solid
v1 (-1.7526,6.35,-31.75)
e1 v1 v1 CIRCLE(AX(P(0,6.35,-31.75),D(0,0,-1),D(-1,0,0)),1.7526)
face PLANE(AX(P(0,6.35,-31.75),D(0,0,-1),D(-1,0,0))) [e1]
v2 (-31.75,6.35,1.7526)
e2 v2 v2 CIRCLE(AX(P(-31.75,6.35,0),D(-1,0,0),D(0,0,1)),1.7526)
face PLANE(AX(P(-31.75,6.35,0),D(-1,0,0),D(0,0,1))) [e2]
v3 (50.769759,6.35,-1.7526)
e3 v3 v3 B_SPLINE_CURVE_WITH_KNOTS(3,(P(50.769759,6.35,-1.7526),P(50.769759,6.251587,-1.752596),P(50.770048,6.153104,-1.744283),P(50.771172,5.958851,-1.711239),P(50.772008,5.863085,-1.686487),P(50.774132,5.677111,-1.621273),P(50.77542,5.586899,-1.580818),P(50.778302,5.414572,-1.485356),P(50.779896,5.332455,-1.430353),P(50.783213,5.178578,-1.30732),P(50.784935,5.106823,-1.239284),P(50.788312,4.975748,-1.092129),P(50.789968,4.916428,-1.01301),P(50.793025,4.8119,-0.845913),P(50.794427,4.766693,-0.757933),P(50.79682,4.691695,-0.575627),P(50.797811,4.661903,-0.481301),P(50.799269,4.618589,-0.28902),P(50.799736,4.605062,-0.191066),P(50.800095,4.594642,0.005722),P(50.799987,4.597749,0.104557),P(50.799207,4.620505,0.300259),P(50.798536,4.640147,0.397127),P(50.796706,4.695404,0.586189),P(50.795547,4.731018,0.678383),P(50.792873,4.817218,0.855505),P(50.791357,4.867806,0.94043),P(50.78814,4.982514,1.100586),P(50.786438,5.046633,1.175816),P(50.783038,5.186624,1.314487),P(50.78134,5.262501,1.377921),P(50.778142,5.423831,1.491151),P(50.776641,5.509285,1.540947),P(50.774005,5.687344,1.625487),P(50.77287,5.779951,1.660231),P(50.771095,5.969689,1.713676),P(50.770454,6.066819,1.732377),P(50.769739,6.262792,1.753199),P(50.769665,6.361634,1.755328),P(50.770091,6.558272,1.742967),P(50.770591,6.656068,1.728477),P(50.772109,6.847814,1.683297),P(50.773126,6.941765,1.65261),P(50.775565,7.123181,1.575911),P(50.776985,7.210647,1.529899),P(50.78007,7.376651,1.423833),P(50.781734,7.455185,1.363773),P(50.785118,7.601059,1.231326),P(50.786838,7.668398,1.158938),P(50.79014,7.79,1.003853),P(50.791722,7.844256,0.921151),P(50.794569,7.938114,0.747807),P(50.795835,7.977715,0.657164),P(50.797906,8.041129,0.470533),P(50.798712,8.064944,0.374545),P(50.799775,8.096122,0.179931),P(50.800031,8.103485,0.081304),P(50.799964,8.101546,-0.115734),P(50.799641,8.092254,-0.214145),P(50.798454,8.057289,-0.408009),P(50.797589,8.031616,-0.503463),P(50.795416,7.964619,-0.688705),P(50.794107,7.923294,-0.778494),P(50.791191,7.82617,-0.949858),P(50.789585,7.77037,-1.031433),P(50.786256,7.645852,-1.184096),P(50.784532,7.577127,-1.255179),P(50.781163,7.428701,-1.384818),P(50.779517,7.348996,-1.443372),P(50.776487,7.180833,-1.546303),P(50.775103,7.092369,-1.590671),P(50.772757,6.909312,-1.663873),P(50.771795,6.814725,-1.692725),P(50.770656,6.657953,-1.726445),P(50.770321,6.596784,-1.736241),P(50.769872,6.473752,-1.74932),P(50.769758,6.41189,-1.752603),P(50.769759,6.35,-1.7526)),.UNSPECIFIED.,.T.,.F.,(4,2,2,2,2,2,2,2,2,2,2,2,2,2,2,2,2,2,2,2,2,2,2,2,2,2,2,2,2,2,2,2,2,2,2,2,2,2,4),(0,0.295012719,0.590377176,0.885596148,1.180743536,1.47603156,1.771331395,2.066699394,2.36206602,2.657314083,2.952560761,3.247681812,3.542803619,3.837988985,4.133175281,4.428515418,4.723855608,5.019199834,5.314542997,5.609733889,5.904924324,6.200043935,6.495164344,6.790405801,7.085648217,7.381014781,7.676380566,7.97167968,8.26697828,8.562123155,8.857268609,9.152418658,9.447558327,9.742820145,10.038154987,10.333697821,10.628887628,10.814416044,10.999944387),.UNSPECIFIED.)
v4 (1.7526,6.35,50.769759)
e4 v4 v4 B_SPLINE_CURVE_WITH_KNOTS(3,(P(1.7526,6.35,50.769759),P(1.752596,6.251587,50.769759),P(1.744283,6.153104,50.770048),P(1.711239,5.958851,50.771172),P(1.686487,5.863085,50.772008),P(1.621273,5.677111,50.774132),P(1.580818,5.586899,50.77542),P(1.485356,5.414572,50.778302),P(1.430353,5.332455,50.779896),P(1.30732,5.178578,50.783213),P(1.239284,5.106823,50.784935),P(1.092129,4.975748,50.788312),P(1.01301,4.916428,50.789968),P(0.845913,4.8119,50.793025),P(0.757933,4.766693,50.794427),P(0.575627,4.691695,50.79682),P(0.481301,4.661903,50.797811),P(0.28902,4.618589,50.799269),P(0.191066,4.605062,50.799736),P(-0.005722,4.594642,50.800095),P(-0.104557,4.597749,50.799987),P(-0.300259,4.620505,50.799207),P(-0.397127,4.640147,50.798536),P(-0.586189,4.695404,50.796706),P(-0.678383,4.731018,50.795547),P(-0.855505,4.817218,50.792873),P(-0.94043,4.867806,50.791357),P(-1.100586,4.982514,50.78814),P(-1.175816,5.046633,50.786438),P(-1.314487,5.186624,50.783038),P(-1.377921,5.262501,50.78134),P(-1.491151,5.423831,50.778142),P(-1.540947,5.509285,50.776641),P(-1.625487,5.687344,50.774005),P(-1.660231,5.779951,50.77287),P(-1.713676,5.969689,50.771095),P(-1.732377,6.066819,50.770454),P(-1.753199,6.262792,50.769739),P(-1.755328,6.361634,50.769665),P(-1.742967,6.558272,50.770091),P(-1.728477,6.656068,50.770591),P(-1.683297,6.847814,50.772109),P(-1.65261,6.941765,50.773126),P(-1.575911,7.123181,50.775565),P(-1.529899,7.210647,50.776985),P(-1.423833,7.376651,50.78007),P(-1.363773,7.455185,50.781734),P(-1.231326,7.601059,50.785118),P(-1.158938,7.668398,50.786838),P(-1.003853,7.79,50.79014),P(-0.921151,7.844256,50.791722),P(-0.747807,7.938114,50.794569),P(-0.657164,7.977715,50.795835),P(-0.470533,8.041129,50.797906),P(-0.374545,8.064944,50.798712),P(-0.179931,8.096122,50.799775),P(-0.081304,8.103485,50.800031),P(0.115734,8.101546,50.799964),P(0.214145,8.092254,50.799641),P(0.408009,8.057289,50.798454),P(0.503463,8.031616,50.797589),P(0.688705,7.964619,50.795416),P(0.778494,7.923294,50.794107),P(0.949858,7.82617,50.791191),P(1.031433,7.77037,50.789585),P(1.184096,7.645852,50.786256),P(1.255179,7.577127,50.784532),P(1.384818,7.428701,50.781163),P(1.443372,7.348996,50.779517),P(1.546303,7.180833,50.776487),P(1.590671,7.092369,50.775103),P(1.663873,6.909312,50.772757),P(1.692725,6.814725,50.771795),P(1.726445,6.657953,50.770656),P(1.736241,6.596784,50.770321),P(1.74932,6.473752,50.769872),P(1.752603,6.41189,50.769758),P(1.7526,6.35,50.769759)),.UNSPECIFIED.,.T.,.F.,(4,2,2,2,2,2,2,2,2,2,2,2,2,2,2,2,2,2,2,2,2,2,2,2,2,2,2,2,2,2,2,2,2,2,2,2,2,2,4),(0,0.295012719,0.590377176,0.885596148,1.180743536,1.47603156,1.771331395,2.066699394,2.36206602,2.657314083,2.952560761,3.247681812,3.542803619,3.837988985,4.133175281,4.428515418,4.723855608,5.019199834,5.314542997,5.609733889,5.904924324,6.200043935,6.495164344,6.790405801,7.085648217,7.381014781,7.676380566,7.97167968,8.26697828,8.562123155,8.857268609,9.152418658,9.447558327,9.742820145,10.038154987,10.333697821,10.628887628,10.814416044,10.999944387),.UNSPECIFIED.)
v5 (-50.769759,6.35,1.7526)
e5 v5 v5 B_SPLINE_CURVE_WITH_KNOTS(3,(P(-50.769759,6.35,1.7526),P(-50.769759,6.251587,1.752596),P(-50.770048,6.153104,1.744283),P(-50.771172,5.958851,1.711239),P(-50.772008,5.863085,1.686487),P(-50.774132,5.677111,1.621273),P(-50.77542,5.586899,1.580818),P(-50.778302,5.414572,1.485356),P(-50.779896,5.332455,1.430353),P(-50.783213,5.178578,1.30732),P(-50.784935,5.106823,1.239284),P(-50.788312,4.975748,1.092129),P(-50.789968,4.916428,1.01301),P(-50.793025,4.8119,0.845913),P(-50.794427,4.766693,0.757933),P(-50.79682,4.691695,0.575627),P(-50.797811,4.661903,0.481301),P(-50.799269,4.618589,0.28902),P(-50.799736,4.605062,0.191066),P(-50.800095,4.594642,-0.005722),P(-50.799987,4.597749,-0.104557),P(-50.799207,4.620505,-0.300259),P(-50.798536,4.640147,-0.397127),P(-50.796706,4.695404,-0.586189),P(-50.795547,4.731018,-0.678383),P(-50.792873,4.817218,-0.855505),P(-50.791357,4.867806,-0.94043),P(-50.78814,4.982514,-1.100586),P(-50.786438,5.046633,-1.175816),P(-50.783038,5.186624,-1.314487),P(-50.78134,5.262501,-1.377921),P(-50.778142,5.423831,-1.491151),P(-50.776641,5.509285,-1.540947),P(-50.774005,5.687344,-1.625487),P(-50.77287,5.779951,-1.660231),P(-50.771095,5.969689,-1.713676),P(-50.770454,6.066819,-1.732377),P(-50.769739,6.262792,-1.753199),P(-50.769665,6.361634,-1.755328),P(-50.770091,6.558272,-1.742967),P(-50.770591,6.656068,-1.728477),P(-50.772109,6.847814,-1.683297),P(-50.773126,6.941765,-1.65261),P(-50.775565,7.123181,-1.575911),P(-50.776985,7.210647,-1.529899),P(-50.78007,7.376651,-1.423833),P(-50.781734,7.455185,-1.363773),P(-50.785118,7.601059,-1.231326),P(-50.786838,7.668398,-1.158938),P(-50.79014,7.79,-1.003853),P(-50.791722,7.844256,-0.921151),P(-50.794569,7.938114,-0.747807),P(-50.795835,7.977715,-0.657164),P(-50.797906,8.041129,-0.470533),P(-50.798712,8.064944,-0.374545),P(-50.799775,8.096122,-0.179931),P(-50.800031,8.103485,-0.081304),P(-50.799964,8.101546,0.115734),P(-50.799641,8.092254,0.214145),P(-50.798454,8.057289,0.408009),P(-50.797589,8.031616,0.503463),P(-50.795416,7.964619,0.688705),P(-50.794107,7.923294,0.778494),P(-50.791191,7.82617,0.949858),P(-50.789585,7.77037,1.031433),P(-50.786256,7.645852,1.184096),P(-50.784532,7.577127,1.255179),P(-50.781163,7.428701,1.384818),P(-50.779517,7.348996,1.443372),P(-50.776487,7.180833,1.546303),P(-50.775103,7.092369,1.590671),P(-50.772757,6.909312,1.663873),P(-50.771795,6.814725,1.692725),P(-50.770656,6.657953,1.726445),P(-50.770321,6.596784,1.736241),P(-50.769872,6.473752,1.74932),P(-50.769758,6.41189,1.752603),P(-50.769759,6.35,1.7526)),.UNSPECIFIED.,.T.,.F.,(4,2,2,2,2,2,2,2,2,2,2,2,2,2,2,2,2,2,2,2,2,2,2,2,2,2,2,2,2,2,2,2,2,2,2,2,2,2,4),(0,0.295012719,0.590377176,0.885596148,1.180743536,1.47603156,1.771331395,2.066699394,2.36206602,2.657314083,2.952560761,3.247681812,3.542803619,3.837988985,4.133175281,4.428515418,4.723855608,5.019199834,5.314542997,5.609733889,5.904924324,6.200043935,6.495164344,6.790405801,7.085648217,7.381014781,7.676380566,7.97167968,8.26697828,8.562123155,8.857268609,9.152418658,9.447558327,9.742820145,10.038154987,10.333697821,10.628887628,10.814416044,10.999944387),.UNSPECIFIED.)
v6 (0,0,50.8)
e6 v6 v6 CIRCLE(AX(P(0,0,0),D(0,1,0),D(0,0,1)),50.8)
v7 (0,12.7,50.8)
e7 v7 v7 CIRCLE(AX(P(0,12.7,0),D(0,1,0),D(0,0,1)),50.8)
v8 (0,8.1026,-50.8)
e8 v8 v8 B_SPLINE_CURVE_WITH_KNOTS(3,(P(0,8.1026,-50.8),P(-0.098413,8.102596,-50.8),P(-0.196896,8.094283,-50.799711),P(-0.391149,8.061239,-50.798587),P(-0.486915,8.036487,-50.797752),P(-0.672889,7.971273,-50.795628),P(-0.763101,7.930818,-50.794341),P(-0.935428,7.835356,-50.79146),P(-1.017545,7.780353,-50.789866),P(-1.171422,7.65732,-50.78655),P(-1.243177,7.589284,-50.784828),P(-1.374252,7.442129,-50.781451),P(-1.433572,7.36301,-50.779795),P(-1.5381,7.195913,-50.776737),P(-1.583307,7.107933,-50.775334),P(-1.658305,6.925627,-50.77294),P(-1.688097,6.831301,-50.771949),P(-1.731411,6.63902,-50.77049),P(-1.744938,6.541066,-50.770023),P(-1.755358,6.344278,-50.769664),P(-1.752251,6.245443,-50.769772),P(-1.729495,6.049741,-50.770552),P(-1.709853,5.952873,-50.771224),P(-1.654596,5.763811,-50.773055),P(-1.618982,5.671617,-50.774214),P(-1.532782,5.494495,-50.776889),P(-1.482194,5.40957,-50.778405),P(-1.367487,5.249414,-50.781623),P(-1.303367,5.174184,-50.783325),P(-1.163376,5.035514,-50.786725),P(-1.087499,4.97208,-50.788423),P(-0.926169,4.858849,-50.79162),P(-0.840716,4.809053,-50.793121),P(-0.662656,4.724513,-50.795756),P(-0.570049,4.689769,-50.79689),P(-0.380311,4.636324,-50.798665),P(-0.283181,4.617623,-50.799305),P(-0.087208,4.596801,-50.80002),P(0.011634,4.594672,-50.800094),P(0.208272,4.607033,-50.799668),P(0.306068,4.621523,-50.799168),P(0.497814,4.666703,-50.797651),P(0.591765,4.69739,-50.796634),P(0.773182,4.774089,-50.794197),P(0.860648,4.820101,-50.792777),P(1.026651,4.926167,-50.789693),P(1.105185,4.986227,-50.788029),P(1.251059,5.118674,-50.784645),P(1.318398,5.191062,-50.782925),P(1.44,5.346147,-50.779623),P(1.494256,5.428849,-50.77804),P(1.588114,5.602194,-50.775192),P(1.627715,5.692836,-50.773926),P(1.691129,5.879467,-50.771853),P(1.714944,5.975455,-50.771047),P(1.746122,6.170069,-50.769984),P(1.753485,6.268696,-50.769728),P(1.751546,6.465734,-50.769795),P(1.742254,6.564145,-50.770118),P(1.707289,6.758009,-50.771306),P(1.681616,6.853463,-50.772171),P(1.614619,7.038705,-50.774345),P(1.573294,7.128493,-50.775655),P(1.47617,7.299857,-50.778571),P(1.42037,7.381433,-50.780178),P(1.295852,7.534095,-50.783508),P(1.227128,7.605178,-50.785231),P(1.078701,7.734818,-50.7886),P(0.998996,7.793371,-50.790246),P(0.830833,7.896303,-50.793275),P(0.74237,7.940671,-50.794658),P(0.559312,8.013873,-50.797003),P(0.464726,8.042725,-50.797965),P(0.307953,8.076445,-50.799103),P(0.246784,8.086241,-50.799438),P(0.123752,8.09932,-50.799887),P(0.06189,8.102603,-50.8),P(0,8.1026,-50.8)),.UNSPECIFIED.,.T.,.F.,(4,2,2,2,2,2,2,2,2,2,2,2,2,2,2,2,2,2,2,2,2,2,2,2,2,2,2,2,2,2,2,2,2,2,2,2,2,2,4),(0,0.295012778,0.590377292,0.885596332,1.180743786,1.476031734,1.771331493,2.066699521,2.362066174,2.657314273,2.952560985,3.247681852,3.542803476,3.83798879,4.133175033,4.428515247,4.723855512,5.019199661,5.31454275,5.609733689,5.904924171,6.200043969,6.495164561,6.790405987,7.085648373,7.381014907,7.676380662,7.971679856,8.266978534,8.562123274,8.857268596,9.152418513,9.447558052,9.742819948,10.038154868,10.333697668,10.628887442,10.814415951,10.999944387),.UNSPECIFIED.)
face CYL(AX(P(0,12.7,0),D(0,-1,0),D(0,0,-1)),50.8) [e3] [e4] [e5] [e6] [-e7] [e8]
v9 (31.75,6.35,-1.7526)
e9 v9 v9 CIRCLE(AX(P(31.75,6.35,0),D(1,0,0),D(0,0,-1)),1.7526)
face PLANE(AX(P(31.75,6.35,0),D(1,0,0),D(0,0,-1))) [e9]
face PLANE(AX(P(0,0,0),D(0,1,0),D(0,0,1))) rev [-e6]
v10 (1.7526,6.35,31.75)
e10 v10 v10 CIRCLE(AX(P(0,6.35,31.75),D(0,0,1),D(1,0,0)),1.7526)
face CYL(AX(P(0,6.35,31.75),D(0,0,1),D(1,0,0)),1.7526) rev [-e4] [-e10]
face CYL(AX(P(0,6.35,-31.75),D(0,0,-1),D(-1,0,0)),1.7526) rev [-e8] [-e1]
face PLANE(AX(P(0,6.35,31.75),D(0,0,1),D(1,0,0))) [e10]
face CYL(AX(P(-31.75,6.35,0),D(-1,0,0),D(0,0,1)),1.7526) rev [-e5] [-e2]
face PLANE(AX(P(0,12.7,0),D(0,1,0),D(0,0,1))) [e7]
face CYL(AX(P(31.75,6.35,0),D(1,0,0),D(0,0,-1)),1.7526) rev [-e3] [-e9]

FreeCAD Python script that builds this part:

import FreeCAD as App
import Part
import Sketcher
Q = App.Units.Quantity

doc = App.newDocument("Part")
body = doc.addObject("PartDesign::Body", "Body")

sketch1 = body.newObject("Sketcher::SketchObject", "Sketch")
sketch1.AttachmentSupport = (doc.getObject("XZ_Plane"), [""])
sketch1.MapMode = "FlatFace"
sketch1.addGeometry(Part.Circle(App.Vector(0, 0, 0), App.Vector(0, 0, 1), 51), False)
sketch1.addConstraint(Sketcher.Constraint("Coincident", 0, 3, -1, 1))
sketch1.addConstraint(Sketcher.Constraint("Diameter", 0, Q("4 in")))
pad1 = body.newObject("PartDesign::Pad", "Pad")
pad1.Profile = sketch1
pad1.Length = Q("0.5 in")
pad1.Reversed = True

sketch2 = body.newObject("Sketcher::SketchObject", "Sketch001")
sketch2.AttachmentSupport = (doc.getObject("XY_Plane"), [""])
sketch2.MapMode = "FlatFace"
sketch2.AttachmentOffset = App.Placement(App.Vector(0, 0, 2 * 25.4), App.Rotation())
sketch2.addGeometry(Part.Circle(App.Vector(0, 6.3, 0), App.Vector(0, 0, 1), 1.8), False)
sketch2.addConstraint(Sketcher.Constraint("PointOnObject", 0, 3, -2))
sketch2.addConstraint(Sketcher.Constraint("Diameter", 0, Q("0.138 in")))
sketch2.addConstraint(Sketcher.Constraint("DistanceY", -1, 1, 0, 3, Q("0.25 in")))
pocket1 = body.newObject("PartDesign::Pocket", "Pocket")
pocket1.Profile = sketch2
pocket1.Length = Q("0.75 in")
doc.recompute()

polarpattern = body.newObject("PartDesign::PolarPattern", "PolarPattern")
polarpattern.Originals = [pocket1]
polarpattern.Axis = (doc.getObject("Y_Axis"), [""])
polarpattern.Angle = 360
polarpattern.Occurrences = 4
body.Tip = polarpattern

doc.recompute()
